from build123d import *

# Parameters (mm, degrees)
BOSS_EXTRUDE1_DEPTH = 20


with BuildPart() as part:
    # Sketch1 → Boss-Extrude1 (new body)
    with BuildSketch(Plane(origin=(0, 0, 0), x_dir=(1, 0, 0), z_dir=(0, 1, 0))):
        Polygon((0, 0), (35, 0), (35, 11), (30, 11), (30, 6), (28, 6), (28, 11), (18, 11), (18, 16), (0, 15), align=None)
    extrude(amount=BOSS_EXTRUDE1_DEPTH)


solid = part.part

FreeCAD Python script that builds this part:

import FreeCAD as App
import Part
import Sketcher
from FreeCAD import Vector
Q = App.Units.Quantity

doc = App.newDocument("Part")
params = doc.addObject("Spreadsheet::Sheet", "Params")
for row, (alias, value) in enumerate([
    ("sketch1_width", "35 mm"),
    ("sketch1_width2", "5 mm"),
    ("sketch1_width3", "2 mm"),
    ("sketch1_width4", "10 mm"),
    ("sketch1_height", "11 mm"),
    ("pad1_length", "20 mm"),
], start=1):
    params.set(f"A{row}", alias)
    params.set(f"B{row}", "=" + value)
    params.setAlias(f"B{row}", alias)

body = doc.addObject("PartDesign::Body", "Body")

# Sketch on XZ plane
sketch1 = body.newObject("Sketcher::SketchObject", "Sketch")
sketch1.AttachmentSupport = (doc.getObject("XZ_Plane"), [""])
sketch1.MapMode = "FlatFace"
sketch1.addGeometry(Part.LineSegment(Vector(0, 0, 0), Vector(35, 0, 0)), False)
sketch1.addGeometry(Part.LineSegment(Vector(35, 0, 0), Vector(35, -11, 0)), False)
sketch1.addGeometry(Part.LineSegment(Vector(35, -11, 0), Vector(30, -11, 0)), False)
sketch1.addGeometry(Part.LineSegment(Vector(30, -11, 0), Vector(30, -6, 0)), False)
sketch1.addGeometry(Part.LineSegment(Vector(30, -6, 0), Vector(28, -6, 0)), False)
sketch1.addGeometry(Part.LineSegment(Vector(28, -6, 0), Vector(28, -11, 0)), False)
sketch1.addGeometry(Part.LineSegment(Vector(28, -11, 0), Vector(18, -11, 0)), False)
sketch1.addGeometry(Part.LineSegment(Vector(18, -11, 0), Vector(18, -16, 0)), False)
sketch1.addGeometry(Part.LineSegment(Vector(18, -16, 0), Vector(0, -15, 0)), False)
sketch1.addGeometry(Part.LineSegment(Vector(0, -15, 0), Vector(0, 0, 0)), False)
sketch1.addConstraint(Sketcher.Constraint("Coincident", 0, 2, 1, 1))
sketch1.addConstraint(Sketcher.Constraint("Coincident", 1, 2, 2, 1))
sketch1.addConstraint(Sketcher.Constraint("Coincident", 2, 2, 3, 1))
sketch1.addConstraint(Sketcher.Constraint("Coincident", 3, 2, 4, 1))
sketch1.addConstraint(Sketcher.Constraint("Coincident", 4, 2, 5, 1))
sketch1.addConstraint(Sketcher.Constraint("Coincident", 5, 2, 6, 1))
sketch1.addConstraint(Sketcher.Constraint("Coincident", 6, 2, 7, 1))
sketch1.addConstraint(Sketcher.Constraint("Coincident", 7, 2, 8, 1))
sketch1.addConstraint(Sketcher.Constraint("Coincident", 8, 2, 9, 1))
sketch1.addConstraint(Sketcher.Constraint("Coincident", 9, 2, 0, 1))
sketch1.addConstraint(Sketcher.Constraint("Horizontal", 0))
sketch1.addConstraint(Sketcher.Constraint("Vertical", 1))
sketch1.addConstraint(Sketcher.Constraint("Horizontal", 2))
sketch1.addConstraint(Sketcher.Constraint("Vertical", 3))
sketch1.addConstraint(Sketcher.Constraint("Horizontal", 4))
sketch1.addConstraint(Sketcher.Constraint("Vertical", 5))
sketch1.addConstraint(Sketcher.Constraint("Horizontal", 6))
sketch1.addConstraint(Sketcher.Constraint("Vertical", 7))
sketch1.addConstraint(Sketcher.Constraint("Vertical", 9))
sketch1.addConstraint(Sketcher.Constraint("Coincident", 9, 2, -1, 1))
sketch1.addConstraint(Sketcher.Constraint("Horizontal", 2, 2, 5, 2))
sketch1.addConstraint(Sketcher.Constraint("Equal", 2, 3))
sketch1.addConstraint(Sketcher.Constraint("Equal", 5, 7))
sketch1.addConstraint(Sketcher.Constraint("DistanceX", 0, 1, 0, 2, Q("35 mm")))
sketch1.addConstraint(Sketcher.Constraint("DistanceX", 2, 2, 2, 1, Q("5 mm")))
sketch1.addConstraint(Sketcher.Constraint("DistanceX", 4, 2, 4, 1, Q("2 mm")))
sketch1.addConstraint(Sketcher.Constraint("DistanceX", 6, 2, 6, 1, Q("10 mm")))
sketch1.addConstraint(Sketcher.Constraint("DistanceY", 1, 2, 1, 1, Q("11 mm")))
sketch1.addConstraint(Sketcher.Constraint("DistanceY", 9, 1, 9, 2, Q("15 mm")))
sketch1.setExpression("Constraints[23]", "Params.sketch1_width")
sketch1.setExpression("Constraints[24]", "Params.sketch1_width2")
sketch1.setExpression("Constraints[25]", "Params.sketch1_width3")
sketch1.setExpression("Constraints[26]", "Params.sketch1_width4")
sketch1.setExpression("Constraints[27]", "Params.sketch1_height")
pad1 = body.newObject("PartDesign::Pad", "Pad")
pad1.Profile = sketch1
pad1.setExpression("Length", "Params.pad1_length")
pad1.Reversed = True

doc.recompute()
